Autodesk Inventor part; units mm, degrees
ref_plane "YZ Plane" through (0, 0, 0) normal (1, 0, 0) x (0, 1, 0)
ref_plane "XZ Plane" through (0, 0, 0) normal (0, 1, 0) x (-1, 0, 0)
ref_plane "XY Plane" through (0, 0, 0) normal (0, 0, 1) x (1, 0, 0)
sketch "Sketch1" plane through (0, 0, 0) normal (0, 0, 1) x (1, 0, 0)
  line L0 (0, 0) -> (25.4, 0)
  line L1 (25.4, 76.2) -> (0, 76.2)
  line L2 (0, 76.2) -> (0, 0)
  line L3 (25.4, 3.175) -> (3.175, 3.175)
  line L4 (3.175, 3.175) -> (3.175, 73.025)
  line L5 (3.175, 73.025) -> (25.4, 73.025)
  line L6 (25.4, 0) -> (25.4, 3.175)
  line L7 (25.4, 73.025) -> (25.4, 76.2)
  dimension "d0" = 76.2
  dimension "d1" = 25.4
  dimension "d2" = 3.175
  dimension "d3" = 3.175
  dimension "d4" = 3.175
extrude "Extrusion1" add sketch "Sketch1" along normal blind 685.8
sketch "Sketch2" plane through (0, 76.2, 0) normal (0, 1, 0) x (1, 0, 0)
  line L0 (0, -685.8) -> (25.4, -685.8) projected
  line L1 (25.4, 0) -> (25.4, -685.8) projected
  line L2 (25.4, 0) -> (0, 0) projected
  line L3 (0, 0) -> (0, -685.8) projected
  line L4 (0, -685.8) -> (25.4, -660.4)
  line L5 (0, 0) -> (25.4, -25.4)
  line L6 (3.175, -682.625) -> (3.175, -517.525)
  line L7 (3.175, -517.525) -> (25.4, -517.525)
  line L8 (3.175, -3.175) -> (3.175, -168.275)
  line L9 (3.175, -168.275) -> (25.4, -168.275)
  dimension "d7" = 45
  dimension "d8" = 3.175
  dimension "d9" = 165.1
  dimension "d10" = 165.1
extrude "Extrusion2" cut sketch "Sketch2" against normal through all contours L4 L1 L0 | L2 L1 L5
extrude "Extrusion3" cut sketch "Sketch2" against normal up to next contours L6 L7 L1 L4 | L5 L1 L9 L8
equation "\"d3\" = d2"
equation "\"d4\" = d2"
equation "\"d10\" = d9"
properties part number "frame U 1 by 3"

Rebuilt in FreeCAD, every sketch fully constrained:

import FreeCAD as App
import Part
import Sketcher

V = App.Vector
Q = App.Units.Quantity


def add_polygon(sketch, points):
    """Adds a closed chain of lines whose ends are joined by coincident constraints."""
    first, n = sketch.GeometryCount, len(points)
    for a, b in zip(points, points[1:] + points[:1]):
        sketch.addGeometry(Part.LineSegment(App.Vector(*a, 0), App.Vector(*b, 0)), False)
    for i in range(n):
        sketch.addConstraint(Sketcher.Constraint("Coincident", first + i, 2, first + (i + 1) % n, 1))

doc = App.newDocument("Part")
body = doc.addObject("PartDesign::Body", "Body")

# Sketch on XY plane
sketch1 = body.newObject("Sketcher::SketchObject", "Sketch")
sketch1.AttachmentSupport = (doc.getObject("XY_Plane"), [""])
sketch1.MapMode = "FlatFace"
add_polygon(sketch1, [(0, 76.2), (0, 0), (25.4, 0), (25.4, 3.2), (3.2, 3.2), (3.2, 73), (25.4, 73), (25.4, 76.2)])  # lines 0-7
sketch1.addConstraint([
    Sketcher.Constraint("Vertical", 0),
    Sketcher.Constraint("Horizontal", 1),
    Sketcher.Constraint("Vertical", 2),
    Sketcher.Constraint("Horizontal", 3),
    Sketcher.Constraint("Vertical", 4),
    Sketcher.Constraint("Horizontal", 5),
    Sketcher.Constraint("Vertical", 6),
    Sketcher.Constraint("Horizontal", 7),
    Sketcher.Constraint("Coincident", 0, 2, -1, 1),
    Sketcher.Constraint("Vertical", 2, 2, 5, 2),
    Sketcher.Constraint("Equal", 2, 6),
    Sketcher.Constraint("DistanceX", 1, 1, 1, 2, Q("1 in")),
    Sketcher.Constraint("DistanceY", 0, 2, 0, 1, Q("3 in")),
    Sketcher.Constraint("DistanceY", 2, 1, 2, 2, Q("0.125 in")),
    Sketcher.Constraint("DistanceX", -1, 1, 3, 2, Q("0.125 in")),
])
pad1 = body.newObject("PartDesign::Pad", "Pad")
pad1.Profile = sketch1
pad1.Length = Q("27 in")

# Sketch on XZ plane
sketch2 = body.newObject("Sketcher::SketchObject", "Sketch001")
sketch2.AttachmentSupport = (doc.getObject("XZ_Plane"), [""])
sketch2.MapMode = "FlatFace"
sketch2.AttachmentOffset = App.Placement(V(0, 0, -3 * 25.4), App.Rotation())
add_polygon(sketch2, [(25, 660), (0, 686), (25, 686)])  # lines 0-2
add_polygon(sketch2, [(25, 0), (0, 0), (25, 25)])  # lines 3-5
sketch2.addConstraint([
    Sketcher.Constraint("Horizontal", 1),
    Sketcher.Constraint("Vertical", 2),
    Sketcher.Constraint("Horizontal", 3),
    Sketcher.Constraint("Vertical", 5),
    Sketcher.Constraint("Coincident", 3, 2, -1, 1),
    Sketcher.Constraint("PointOnObject", 0, 2, -2),
    Sketcher.Constraint("Perpendicular", 0, 4),
    Sketcher.Constraint("Vertical", 2, 2, 4, 2),
    Sketcher.Constraint("Equal", 3, 2),
    Sketcher.Constraint("DistanceX", 1, 1, 1, 2, Q("1 in")),
    Sketcher.Constraint("DistanceY", -1, 1, 0, 2, Q("27 in")),
])
pocket1 = body.newObject("PartDesign::Pocket", "Pocket")
pocket1.Profile = sketch2
pocket1.Type = "ThroughAll"
pocket1.Reversed = True

# Sketch on XZ plane
sketch3 = body.newObject("Sketcher::SketchObject", "Sketch002")
sketch3.AttachmentSupport = (doc.getObject("XZ_Plane"), [""])
sketch3.MapMode = "FlatFace"
sketch3.AttachmentOffset = App.Placement(V(0, 0, -3 * 25.4), App.Rotation())
add_polygon(sketch3, [(3, 518), (3, 683), (25, 660), (25, 518)])  # lines 0-3
add_polygon(sketch3, [(25, 25), (3, 3), (3, 168), (25, 168)])  # lines 4-7
sketch3.addConstraint([
    Sketcher.Constraint("Vertical", 0),
    Sketcher.Constraint("Vertical", 2),
    Sketcher.Constraint("Horizontal", 3),
    Sketcher.Constraint("Vertical", 5),
    Sketcher.Constraint("Horizontal", 6),
    Sketcher.Constraint("Vertical", 7),
    Sketcher.Constraint("Perpendicular", 1, 4),
    Sketcher.Constraint("Vertical", 3, 2, 4, 2),
    Sketcher.Constraint("Vertical", 2, 2, 6, 2),
    Sketcher.Constraint("Equal", 0, 5),
    Sketcher.Constraint("Equal", 2, 7),
    Sketcher.Constraint("DistanceY", 0, 1, 0, 2, Q("6.5 in")),
    Sketcher.Constraint("DistanceX", -1, 1, 0, 2, Q("0.125 in")),
    Sketcher.Constraint("DistanceY", -1, 1, 4, 2, Q("0.125 in")),
    Sketcher.Constraint("DistanceX", -1, 1, 1, 2, Q("1 in")),
    Sketcher.Constraint("DistanceY", -1, 1, 1, 2, Q("26 in")),
])
pocket2 = body.newObject("PartDesign::Pocket", "Pocket001")
pocket2.Profile = sketch3
pocket2.Type = "UpToFirst"
pocket2.Reversed = True

doc.recompute()
